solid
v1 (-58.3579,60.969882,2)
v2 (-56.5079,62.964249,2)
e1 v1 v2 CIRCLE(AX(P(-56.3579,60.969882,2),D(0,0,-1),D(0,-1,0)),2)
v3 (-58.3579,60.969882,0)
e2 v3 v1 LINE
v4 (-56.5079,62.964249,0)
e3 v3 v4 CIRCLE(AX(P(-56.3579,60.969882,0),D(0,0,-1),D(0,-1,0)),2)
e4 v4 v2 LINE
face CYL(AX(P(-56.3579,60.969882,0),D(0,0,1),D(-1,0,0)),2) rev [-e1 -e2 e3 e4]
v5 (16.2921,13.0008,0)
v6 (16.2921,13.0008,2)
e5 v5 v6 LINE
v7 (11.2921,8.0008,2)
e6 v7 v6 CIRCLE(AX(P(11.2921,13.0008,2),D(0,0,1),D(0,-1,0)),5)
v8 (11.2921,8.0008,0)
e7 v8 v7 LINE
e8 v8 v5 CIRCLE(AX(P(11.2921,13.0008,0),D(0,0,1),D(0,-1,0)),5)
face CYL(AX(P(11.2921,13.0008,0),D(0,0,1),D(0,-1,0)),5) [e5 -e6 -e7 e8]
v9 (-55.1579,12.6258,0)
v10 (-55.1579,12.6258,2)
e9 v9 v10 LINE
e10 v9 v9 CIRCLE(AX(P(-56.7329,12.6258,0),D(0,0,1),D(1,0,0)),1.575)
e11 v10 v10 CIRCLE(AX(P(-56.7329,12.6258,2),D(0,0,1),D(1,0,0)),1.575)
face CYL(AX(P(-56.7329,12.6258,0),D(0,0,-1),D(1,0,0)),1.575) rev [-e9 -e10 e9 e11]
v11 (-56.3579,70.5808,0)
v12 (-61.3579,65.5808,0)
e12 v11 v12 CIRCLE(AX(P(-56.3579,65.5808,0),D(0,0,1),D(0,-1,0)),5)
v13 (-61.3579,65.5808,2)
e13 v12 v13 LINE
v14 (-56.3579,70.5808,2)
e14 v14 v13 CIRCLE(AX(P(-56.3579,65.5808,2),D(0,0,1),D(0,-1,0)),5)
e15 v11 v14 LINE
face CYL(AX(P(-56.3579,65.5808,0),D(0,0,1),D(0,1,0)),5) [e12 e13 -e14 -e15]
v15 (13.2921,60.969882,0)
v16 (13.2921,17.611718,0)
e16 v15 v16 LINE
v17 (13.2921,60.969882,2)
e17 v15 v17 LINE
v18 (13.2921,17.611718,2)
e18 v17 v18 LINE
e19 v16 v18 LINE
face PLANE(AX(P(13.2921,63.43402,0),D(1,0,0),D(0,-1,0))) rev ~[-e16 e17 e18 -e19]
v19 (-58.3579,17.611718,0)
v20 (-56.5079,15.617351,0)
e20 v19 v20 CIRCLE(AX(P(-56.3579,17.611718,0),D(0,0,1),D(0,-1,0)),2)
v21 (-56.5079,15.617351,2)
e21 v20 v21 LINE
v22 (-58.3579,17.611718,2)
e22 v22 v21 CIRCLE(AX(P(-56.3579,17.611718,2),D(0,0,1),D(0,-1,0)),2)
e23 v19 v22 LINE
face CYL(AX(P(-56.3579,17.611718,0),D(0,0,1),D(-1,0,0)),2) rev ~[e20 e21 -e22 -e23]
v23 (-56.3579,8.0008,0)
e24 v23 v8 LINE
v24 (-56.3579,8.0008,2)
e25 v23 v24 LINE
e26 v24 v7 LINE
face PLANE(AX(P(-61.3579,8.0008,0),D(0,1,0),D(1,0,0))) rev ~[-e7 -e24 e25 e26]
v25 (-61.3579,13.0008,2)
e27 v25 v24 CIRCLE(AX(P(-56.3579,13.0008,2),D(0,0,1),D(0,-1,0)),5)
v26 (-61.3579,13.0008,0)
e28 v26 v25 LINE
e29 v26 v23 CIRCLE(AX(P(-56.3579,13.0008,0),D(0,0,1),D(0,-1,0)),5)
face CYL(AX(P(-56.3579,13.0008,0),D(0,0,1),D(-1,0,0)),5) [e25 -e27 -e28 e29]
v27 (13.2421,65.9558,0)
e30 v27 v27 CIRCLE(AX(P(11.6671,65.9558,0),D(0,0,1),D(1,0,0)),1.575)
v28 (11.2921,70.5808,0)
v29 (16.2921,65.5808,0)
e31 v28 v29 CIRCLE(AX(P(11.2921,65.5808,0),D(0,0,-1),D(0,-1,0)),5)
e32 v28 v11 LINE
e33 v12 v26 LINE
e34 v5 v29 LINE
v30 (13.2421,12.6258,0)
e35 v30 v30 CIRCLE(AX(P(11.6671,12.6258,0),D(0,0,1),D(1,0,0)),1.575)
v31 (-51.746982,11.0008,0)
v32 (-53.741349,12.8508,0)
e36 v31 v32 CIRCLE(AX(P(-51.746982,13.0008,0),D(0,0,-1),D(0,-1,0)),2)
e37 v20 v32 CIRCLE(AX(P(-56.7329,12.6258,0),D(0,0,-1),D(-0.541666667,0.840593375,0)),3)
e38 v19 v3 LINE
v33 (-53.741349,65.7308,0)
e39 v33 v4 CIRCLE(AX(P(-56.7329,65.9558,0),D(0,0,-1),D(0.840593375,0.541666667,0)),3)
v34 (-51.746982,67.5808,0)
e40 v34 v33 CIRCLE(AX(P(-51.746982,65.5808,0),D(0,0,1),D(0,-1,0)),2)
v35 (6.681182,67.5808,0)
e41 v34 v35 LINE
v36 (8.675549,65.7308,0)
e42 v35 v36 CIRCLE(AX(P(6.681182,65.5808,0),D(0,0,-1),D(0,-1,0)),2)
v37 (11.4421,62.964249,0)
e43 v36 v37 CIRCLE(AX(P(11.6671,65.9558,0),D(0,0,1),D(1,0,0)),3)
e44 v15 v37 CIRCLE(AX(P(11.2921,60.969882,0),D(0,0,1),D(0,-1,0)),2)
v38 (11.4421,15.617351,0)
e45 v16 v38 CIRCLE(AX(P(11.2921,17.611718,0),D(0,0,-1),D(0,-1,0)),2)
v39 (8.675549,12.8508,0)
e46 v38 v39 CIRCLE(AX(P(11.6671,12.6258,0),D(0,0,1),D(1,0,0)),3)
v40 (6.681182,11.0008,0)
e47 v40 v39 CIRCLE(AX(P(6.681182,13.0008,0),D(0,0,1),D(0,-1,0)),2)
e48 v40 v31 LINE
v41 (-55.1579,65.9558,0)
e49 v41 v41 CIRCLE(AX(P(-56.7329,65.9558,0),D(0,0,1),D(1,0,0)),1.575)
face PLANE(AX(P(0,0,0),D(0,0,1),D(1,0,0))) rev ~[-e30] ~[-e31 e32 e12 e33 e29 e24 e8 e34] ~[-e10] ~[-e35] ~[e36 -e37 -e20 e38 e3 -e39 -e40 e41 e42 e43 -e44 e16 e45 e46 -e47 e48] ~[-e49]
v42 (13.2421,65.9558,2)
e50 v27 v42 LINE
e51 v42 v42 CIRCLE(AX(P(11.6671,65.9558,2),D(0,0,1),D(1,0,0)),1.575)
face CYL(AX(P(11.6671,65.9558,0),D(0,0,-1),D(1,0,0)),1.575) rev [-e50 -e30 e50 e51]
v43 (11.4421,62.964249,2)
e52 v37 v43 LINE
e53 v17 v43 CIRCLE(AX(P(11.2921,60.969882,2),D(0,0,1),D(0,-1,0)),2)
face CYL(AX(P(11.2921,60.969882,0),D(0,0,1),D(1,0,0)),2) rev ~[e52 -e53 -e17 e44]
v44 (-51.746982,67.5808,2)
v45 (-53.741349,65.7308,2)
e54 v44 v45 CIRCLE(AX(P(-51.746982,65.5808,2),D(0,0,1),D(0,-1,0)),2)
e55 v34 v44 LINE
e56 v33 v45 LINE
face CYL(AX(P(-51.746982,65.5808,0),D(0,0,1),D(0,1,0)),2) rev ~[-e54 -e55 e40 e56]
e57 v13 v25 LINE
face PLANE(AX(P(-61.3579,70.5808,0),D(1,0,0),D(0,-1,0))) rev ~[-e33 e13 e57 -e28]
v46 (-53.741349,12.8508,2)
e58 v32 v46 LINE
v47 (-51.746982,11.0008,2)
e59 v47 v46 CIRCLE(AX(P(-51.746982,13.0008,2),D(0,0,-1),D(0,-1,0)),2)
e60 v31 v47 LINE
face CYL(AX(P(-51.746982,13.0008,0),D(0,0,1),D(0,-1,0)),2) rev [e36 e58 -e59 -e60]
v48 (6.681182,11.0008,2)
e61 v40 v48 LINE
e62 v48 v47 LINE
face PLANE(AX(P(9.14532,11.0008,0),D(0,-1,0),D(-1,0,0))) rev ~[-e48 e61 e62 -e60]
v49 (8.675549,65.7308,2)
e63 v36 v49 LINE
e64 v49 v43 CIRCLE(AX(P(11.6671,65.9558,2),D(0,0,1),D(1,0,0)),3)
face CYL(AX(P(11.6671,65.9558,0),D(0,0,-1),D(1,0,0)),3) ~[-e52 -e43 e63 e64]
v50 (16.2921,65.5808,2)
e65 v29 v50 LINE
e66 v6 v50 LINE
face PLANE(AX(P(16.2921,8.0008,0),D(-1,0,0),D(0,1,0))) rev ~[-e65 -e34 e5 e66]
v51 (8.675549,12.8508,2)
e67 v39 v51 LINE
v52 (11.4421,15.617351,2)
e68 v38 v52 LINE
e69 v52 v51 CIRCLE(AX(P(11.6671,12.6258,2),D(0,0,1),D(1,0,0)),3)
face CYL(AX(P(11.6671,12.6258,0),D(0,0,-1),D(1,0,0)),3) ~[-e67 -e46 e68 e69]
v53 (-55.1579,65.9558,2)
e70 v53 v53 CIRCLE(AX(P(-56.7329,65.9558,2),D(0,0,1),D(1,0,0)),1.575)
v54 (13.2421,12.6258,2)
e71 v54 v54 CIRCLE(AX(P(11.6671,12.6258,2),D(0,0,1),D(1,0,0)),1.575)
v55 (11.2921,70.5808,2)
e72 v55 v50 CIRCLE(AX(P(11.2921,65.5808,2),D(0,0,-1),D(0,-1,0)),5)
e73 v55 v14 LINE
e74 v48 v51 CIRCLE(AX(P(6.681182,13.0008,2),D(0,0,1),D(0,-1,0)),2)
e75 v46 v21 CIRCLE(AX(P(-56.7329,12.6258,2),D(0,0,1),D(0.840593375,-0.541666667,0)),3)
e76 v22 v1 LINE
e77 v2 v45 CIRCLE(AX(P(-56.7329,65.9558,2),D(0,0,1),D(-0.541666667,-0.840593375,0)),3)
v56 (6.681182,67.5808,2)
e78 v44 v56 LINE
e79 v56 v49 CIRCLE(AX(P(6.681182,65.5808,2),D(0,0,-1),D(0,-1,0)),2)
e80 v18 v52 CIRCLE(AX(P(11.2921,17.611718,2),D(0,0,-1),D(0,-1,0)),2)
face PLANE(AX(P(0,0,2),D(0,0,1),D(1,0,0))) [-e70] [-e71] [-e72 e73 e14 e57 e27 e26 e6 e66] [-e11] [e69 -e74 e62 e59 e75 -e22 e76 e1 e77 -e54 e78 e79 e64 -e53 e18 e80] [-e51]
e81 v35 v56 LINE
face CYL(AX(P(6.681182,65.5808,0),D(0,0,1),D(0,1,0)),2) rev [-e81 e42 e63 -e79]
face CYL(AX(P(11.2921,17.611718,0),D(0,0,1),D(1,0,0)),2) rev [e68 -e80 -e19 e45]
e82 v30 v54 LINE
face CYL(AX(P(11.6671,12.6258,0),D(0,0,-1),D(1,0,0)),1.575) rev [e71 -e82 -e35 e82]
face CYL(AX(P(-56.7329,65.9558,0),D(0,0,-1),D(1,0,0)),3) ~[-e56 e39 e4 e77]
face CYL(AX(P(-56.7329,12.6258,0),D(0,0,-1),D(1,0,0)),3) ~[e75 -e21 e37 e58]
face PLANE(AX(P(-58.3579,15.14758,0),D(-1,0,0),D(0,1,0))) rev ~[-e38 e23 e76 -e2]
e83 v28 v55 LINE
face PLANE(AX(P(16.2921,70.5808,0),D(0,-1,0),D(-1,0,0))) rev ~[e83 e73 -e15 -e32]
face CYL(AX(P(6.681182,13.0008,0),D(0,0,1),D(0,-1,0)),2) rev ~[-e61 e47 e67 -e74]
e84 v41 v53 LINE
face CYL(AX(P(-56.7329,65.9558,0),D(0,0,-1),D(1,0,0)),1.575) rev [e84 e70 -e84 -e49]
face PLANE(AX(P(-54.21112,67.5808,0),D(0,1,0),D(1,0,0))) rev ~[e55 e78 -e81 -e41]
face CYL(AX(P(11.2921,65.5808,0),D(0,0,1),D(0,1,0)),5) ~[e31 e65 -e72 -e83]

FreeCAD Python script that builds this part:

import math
import FreeCAD as App
import Part
import Sketcher
from FreeCAD import Vector
Q = App.Units.Quantity


def edges_at(feature, points):
    """Names of the edges that pass closest to the given points."""
    edges = feature.Shape.Edges
    near = lambda p: min(range(len(edges)), key=lambda i: edges[i].distToShape(Part.Vertex(*p))[0])
    return sorted({f"Edge{near(p) + 1}" for p in points})

doc = App.newDocument("Part")
body = doc.addObject("PartDesign::Body", "Body")

# Sketch on XY plane
sketch1 = doc.addObject("Sketcher::SketchObject", "Sketch")
body.addObject(sketch1)
sketch1.AttachmentSupport = (doc.XY_Plane, [""])
sketch1.MapMode = "FlatFace"
sketch1.addGeometry(Part.LineSegment(Vector(16.3, 70.6, 0), Vector(-61.4, 70.6, 0)), False)
sketch1.addGeometry(Part.LineSegment(Vector(-61.4, 70.6, 0), Vector(-61.4, 8, 0)), False)
sketch1.addGeometry(Part.LineSegment(Vector(-61.4, 8, 0), Vector(16.3, 8, 0)), False)
sketch1.addGeometry(Part.LineSegment(Vector(16.3, 8, 0), Vector(16.3, 70.6, 0)), False)
sketch1.addGeometry(Part.LineSegment(Vector(-58.4, 15.1, 0), Vector(-58.4, 63.4, 0)), False)
sketch1.addGeometry(Part.ArcOfCircle(Part.Circle(Vector(-56.7, 66, 0), Vector(0, 0, 1), 3), math.radians(-123), math.radians(33)), False)
sketch1.addGeometry(Part.LineSegment(Vector(-54.2, 67.6, 0), Vector(9.1, 67.6, 0)), False)
sketch1.addGeometry(Part.ArcOfCircle(Part.Circle(Vector(11.7, 66, 0), Vector(0, 0, 1), 3), math.radians(147), math.radians(303)), False)
sketch1.addGeometry(Part.LineSegment(Vector(13.3, 63.4, 0), Vector(13.3, 15.1, 0)), False)
sketch1.addGeometry(Part.ArcOfCircle(Part.Circle(Vector(11.7, 12.6, 0), Vector(0, 0, 1), 3), math.radians(57), math.radians(213)), False)
sketch1.addGeometry(Part.LineSegment(Vector(9.1, 11, 0), Vector(-54.2, 11, 0)), False)
sketch1.addGeometry(Part.ArcOfCircle(Part.Circle(Vector(-56.7, 12.6, 0), Vector(0, 0, 1), 3), math.radians(-33), math.radians(123)), False)
sketch1.addGeometry(Part.Circle(Vector(-56.7, 66, 0), Vector(0, 0, 1), 1.6), False)
sketch1.addGeometry(Part.Circle(Vector(-56.7, 12.6, 0), Vector(0, 0, 1), 1.6), False)
sketch1.addGeometry(Part.Circle(Vector(11.7, 12.6, 0), Vector(0, 0, 1), 1.6), False)
sketch1.addGeometry(Part.Circle(Vector(11.7, 66, 0), Vector(0, 0, 1), 1.6), False)
sketch1.addConstraint(Sketcher.Constraint("Coincident", 0, 2, 1, 1))
sketch1.addConstraint(Sketcher.Constraint("Coincident", 1, 2, 2, 1))
sketch1.addConstraint(Sketcher.Constraint("Coincident", 2, 2, 3, 1))
sketch1.addConstraint(Sketcher.Constraint("Coincident", 3, 2, 0, 1))
sketch1.addConstraint(Sketcher.Constraint("Coincident", 4, 2, 5, 1))
sketch1.addConstraint(Sketcher.Constraint("Coincident", 5, 2, 6, 1))
sketch1.addConstraint(Sketcher.Constraint("Coincident", 6, 2, 7, 1))
sketch1.addConstraint(Sketcher.Constraint("Coincident", 7, 2, 8, 1))
sketch1.addConstraint(Sketcher.Constraint("Coincident", 8, 2, 9, 1))
sketch1.addConstraint(Sketcher.Constraint("Coincident", 9, 2, 10, 1))
sketch1.addConstraint(Sketcher.Constraint("Coincident", 10, 2, 11, 1))
sketch1.addConstraint(Sketcher.Constraint("Coincident", 11, 2, 4, 1))
sketch1.addConstraint(Sketcher.Constraint("Horizontal", 0))
sketch1.addConstraint(Sketcher.Constraint("Vertical", 1))
sketch1.addConstraint(Sketcher.Constraint("Horizontal", 2))
sketch1.addConstraint(Sketcher.Constraint("Vertical", 3))
sketch1.addConstraint(Sketcher.Constraint("Vertical", 4))
sketch1.addConstraint(Sketcher.Constraint("Horizontal", 6))
sketch1.addConstraint(Sketcher.Constraint("Vertical", 8))
sketch1.addConstraint(Sketcher.Constraint("Horizontal", 10))
sketch1.addConstraint(Sketcher.Constraint("Coincident", 12, 3, 5, 3))
sketch1.addConstraint(Sketcher.Constraint("Coincident", 13, 3, 11, 3))
sketch1.addConstraint(Sketcher.Constraint("Coincident", 14, 3, 9, 3))
sketch1.addConstraint(Sketcher.Constraint("Coincident", 15, 3, 7, 3))
sketch1.addConstraint(Sketcher.Constraint("Equal", 5, 7))
sketch1.addConstraint(Sketcher.Constraint("Equal", 7, 9))
sketch1.addConstraint(Sketcher.Constraint("Equal", 9, 11))
sketch1.addConstraint(Sketcher.Constraint("Equal", 12, 13))
sketch1.addConstraint(Sketcher.Constraint("Equal", 13, 14))
sketch1.addConstraint(Sketcher.Constraint("Equal", 14, 15))
sketch1.addConstraint(Sketcher.Constraint("Horizontal", 5, 3, 7, 3))
sketch1.addConstraint(Sketcher.Constraint("Horizontal", 9, 3, 11, 3))
sketch1.addConstraint(Sketcher.Constraint("Horizontal", 4, 2, 7, 2))
sketch1.addConstraint(Sketcher.Constraint("Horizontal", 8, 2, 11, 2))
sketch1.addConstraint(Sketcher.Constraint("Vertical", 7, 3, 9, 3))
sketch1.addConstraint(Sketcher.Constraint("Vertical", 6, 2, 9, 2))
sketch1.addConstraint(Sketcher.Constraint("Radius", 5, Q("3 mm")))
sketch1.addConstraint(Sketcher.Constraint("Diameter", 12, Q("3.15 mm")))
sketch1.addConstraint(Sketcher.Constraint("DistanceX", 0, 2, 4, 2, Q("3 mm")))
sketch1.addConstraint(Sketcher.Constraint("DistanceY", 5, 2, 0, 2, Q("3 mm")))
sketch1.addConstraint(Sketcher.Constraint("DistanceX", 7, 2, 3, 2, Q("3 mm")))
sketch1.addConstraint(Sketcher.Constraint("DistanceY", 2, 2, 9, 2, Q("3 mm")))
sketch1.addConstraint(Sketcher.Constraint("DistanceX", 0, 2, 0, 1, Q("77.65 mm")))
sketch1.addConstraint(Sketcher.Constraint("DistanceY", 1, 2, 1, 1, Q("62.58 mm")))
sketch1.addConstraint(Sketcher.Constraint("DistanceX", 5, 3, 7, 3, Q("68.4 mm")))
sketch1.addConstraint(Sketcher.Constraint("DistanceY", 9, 3, 7, 3, Q("53.33 mm")))
sketch1.addConstraint(Sketcher.Constraint("DistanceX", 5, 3, -1, 1, Q("56.733 mm")))
sketch1.addConstraint(Sketcher.Constraint("DistanceY", -1, 1, 4, 2, Q("63.434 mm")))
pad1 = doc.addObject("PartDesign::Pad", "Pad")
body.addObject(pad1)
pad1.Profile = sketch1
pad1.Length = 2
doc.recompute()

fillet = doc.addObject("PartDesign::Fillet", "Fillet")
body.addObject(fillet)
fillet.Base = (pad1, edges_at(pad1, [
    (9.145, 67.581, 1),
    (13.292, 63.434, 1),
    (-58.358, 63.434, 1),
    (-54.211, 67.581, 1),
    (-54.211, 11.001, 1),
    (-58.358, 15.148, 1),
    (13.292, 15.148, 1),
    (9.145, 11.001, 1),
]))
fillet.Radius = 2
doc.recompute()

fillet2 = doc.addObject("PartDesign::Fillet", "Fillet001")
body.addObject(fillet2)
fillet2.Base = (fillet, edges_at(fillet, [
    (16.292, 70.581, 1),
    (-61.358, 70.581, 1),
    (-61.358, 8.001, 1),
    (16.292, 8.001, 1),
]))
fillet2.Radius = 5

doc.recompute()
